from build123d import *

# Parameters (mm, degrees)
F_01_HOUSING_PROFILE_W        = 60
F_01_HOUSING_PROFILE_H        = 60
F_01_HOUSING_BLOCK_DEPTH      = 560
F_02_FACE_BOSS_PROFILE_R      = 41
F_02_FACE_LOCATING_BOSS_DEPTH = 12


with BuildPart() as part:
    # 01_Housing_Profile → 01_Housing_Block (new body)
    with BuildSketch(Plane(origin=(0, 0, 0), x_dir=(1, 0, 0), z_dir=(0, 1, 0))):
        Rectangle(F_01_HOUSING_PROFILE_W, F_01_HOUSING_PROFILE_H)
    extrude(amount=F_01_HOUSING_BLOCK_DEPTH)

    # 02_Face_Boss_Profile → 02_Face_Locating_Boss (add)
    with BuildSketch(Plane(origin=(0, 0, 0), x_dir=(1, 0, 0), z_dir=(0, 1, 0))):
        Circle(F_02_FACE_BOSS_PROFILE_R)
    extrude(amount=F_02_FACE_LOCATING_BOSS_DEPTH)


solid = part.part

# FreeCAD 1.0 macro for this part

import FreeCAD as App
import Part
import Sketcher

V = App.Vector


def add_polygon(sketch, points):
    """Adds a closed chain of lines whose ends are joined by coincident constraints."""
    first, n = sketch.GeometryCount, len(points)
    for a, b in zip(points, points[1:] + points[:1]):
        sketch.addGeometry(Part.LineSegment(App.Vector(*a, 0), App.Vector(*b, 0)), False)
    for i in range(n):
        sketch.addConstraint(Sketcher.Constraint("Coincident", first + i, 2, first + (i + 1) % n, 1))

doc = App.newDocument("Part")
params = doc.addObject("Spreadsheet::Sheet", "Params")
for row, (alias, value) in enumerate([
    ("sketch1_width", "60 mm"),
    ("pad1_length", "560 mm"),
    ("sketch2_diameter", "82 mm"),
    ("pad2_length", "12 mm"),
], start=1):
    params.set(f"A{row}", alias)
    params.set(f"B{row}", "=" + value)
    params.setAlias(f"B{row}", alias)

body = doc.addObject("PartDesign::Body", "Body")

sketch1 = doc.addObject("Sketcher::SketchObject", "Sketch")
body.addObject(sketch1)
sketch1.AttachmentSupport = (doc.XZ_Plane, [""])
sketch1.MapMode = "FlatFace"
add_polygon(sketch1, [(-30, -30), (-30, 30), (30, 30), (30, -30)])
sketch1.addConstraint([
    Sketcher.Constraint("Vertical", 0),
    Sketcher.Constraint("Horizontal", 1),
    Sketcher.Constraint("Vertical", 2),
    Sketcher.Constraint("Horizontal", 3),
    Sketcher.Constraint("Symmetric", 0, 2, 2, 2, -1, 1),
    Sketcher.Constraint("Equal", 3, 0),
    Sketcher.Constraint("DistanceX", 1, 1, 1, 2, 60.0),
])
sketch1.setExpression("Constraints[10]", "Params.sketch1_width")
pad1 = doc.addObject("PartDesign::Pad", "Pad")
body.addObject(pad1)
pad1.Profile = sketch1
pad1.setExpression("Length", "Params.pad1_length")
pad1.Reversed = True

sketch2 = doc.addObject("Sketcher::SketchObject", "Sketch001")
body.addObject(sketch2)
sketch2.AttachmentSupport = (doc.XZ_Plane, [""])
sketch2.MapMode = "FlatFace"
sketch2.addGeometry(Part.Circle(V(0, 0, 0), V(0, 0, 1), 41), False)
sketch2.addConstraint([
    Sketcher.Constraint("Coincident", 0, 3, -1, 1),
    Sketcher.Constraint("Diameter", 0, 82.0),
])
sketch2.setExpression("Constraints[1]", "Params.sketch2_diameter")
pad2 = doc.addObject("PartDesign::Pad", "Pad001")
body.addObject(pad2)
pad2.Profile = sketch2
pad2.setExpression("Length", "Params.pad2_length")
pad2.Reversed = True

doc.recompute()
